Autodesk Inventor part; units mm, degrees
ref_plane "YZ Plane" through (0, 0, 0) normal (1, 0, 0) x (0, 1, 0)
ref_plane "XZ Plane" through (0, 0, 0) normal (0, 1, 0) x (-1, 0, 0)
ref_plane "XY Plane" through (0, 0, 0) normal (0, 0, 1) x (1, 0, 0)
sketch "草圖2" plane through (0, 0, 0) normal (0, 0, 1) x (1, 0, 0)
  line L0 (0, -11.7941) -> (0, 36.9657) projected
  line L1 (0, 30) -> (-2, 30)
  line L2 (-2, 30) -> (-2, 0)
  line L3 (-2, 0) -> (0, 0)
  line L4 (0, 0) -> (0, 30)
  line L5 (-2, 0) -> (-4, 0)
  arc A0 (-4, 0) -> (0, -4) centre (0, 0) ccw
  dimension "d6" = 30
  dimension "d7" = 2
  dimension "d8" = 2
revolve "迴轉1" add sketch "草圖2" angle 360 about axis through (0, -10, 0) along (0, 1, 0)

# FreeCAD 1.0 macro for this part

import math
import FreeCAD as App
import Part
import Sketcher
from FreeCAD import Vector

doc = App.newDocument("Part")
params = doc.addObject("Spreadsheet::Sheet", "Params")
for row, (alias, value) in enumerate([
    ("sketch1_width", "2 mm"),
    ("sketch1_height", "30 mm"),
    ("revolution_angle", "360 deg"),
], start=1):
    params.set(f"A{row}", alias)
    params.set(f"B{row}", "=" + value)
    params.setAlias(f"B{row}", alias)

body = doc.addObject("PartDesign::Body", "Body")

sketch1 = doc.addObject("Sketcher::SketchObject", "Sketch")
body.addObject(sketch1)
sketch1.AttachmentSupport = (doc.XY_Plane, [""])
sketch1.MapMode = "FlatFace"
sketch1.addGeometry(Part.ArcOfCircle(Part.Circle(Vector(0, 0, 0), Vector(0, 0, 1), 4), math.radians(180), math.radians(270)), False)
sketch1.addGeometry(Part.LineSegment(Vector(0, -4, 0), Vector(0, 30, 0)), False)
sketch1.addGeometry(Part.LineSegment(Vector(0, 30, 0), Vector(-2, 30, 0)), False)
sketch1.addGeometry(Part.LineSegment(Vector(-2, 30, 0), Vector(-2, 0, 0)), False)
sketch1.addGeometry(Part.LineSegment(Vector(-2, 0, 0), Vector(-4, 0, 0)), False)
sketch1.addConstraint(Sketcher.Constraint("Coincident", 0, 2, 1, 1))
sketch1.addConstraint(Sketcher.Constraint("Coincident", 1, 2, 2, 1))
sketch1.addConstraint(Sketcher.Constraint("Coincident", 2, 2, 3, 1))
sketch1.addConstraint(Sketcher.Constraint("Coincident", 3, 2, 4, 1))
sketch1.addConstraint(Sketcher.Constraint("Coincident", 4, 2, 0, 1))
sketch1.addConstraint(Sketcher.Constraint("Vertical", 1))
sketch1.addConstraint(Sketcher.Constraint("Horizontal", 2))
sketch1.addConstraint(Sketcher.Constraint("Vertical", 3))
sketch1.addConstraint(Sketcher.Constraint("Horizontal", 4))
sketch1.addConstraint(Sketcher.Constraint("Coincident", 0, 3, -1, 1))
sketch1.addConstraint(Sketcher.Constraint("PointOnObject", 0, 2, -2))
sketch1.addConstraint(Sketcher.Constraint("PointOnObject", 3, 2, -1))
sketch1.addConstraint(Sketcher.Constraint("Equal", 2, 4))
sketch1.addConstraint(Sketcher.Constraint("DistanceX", 2, 2, 2, 1, 2.0))
sketch1.addConstraint(Sketcher.Constraint("DistanceY", 3, 2, 3, 1, 30.0))
sketch1.setExpression("Constraints[13]", "Params.sketch1_width")
sketch1.setExpression("Constraints[14]", "Params.sketch1_height")
revolution = doc.addObject("PartDesign::Revolution", "Revolution")
body.addObject(revolution)
revolution.Profile = sketch1
revolution.ReferenceAxis = (sketch1, ["V_Axis"])
revolution.setExpression("Angle", "Params.revolution_angle")

doc.recompute()
